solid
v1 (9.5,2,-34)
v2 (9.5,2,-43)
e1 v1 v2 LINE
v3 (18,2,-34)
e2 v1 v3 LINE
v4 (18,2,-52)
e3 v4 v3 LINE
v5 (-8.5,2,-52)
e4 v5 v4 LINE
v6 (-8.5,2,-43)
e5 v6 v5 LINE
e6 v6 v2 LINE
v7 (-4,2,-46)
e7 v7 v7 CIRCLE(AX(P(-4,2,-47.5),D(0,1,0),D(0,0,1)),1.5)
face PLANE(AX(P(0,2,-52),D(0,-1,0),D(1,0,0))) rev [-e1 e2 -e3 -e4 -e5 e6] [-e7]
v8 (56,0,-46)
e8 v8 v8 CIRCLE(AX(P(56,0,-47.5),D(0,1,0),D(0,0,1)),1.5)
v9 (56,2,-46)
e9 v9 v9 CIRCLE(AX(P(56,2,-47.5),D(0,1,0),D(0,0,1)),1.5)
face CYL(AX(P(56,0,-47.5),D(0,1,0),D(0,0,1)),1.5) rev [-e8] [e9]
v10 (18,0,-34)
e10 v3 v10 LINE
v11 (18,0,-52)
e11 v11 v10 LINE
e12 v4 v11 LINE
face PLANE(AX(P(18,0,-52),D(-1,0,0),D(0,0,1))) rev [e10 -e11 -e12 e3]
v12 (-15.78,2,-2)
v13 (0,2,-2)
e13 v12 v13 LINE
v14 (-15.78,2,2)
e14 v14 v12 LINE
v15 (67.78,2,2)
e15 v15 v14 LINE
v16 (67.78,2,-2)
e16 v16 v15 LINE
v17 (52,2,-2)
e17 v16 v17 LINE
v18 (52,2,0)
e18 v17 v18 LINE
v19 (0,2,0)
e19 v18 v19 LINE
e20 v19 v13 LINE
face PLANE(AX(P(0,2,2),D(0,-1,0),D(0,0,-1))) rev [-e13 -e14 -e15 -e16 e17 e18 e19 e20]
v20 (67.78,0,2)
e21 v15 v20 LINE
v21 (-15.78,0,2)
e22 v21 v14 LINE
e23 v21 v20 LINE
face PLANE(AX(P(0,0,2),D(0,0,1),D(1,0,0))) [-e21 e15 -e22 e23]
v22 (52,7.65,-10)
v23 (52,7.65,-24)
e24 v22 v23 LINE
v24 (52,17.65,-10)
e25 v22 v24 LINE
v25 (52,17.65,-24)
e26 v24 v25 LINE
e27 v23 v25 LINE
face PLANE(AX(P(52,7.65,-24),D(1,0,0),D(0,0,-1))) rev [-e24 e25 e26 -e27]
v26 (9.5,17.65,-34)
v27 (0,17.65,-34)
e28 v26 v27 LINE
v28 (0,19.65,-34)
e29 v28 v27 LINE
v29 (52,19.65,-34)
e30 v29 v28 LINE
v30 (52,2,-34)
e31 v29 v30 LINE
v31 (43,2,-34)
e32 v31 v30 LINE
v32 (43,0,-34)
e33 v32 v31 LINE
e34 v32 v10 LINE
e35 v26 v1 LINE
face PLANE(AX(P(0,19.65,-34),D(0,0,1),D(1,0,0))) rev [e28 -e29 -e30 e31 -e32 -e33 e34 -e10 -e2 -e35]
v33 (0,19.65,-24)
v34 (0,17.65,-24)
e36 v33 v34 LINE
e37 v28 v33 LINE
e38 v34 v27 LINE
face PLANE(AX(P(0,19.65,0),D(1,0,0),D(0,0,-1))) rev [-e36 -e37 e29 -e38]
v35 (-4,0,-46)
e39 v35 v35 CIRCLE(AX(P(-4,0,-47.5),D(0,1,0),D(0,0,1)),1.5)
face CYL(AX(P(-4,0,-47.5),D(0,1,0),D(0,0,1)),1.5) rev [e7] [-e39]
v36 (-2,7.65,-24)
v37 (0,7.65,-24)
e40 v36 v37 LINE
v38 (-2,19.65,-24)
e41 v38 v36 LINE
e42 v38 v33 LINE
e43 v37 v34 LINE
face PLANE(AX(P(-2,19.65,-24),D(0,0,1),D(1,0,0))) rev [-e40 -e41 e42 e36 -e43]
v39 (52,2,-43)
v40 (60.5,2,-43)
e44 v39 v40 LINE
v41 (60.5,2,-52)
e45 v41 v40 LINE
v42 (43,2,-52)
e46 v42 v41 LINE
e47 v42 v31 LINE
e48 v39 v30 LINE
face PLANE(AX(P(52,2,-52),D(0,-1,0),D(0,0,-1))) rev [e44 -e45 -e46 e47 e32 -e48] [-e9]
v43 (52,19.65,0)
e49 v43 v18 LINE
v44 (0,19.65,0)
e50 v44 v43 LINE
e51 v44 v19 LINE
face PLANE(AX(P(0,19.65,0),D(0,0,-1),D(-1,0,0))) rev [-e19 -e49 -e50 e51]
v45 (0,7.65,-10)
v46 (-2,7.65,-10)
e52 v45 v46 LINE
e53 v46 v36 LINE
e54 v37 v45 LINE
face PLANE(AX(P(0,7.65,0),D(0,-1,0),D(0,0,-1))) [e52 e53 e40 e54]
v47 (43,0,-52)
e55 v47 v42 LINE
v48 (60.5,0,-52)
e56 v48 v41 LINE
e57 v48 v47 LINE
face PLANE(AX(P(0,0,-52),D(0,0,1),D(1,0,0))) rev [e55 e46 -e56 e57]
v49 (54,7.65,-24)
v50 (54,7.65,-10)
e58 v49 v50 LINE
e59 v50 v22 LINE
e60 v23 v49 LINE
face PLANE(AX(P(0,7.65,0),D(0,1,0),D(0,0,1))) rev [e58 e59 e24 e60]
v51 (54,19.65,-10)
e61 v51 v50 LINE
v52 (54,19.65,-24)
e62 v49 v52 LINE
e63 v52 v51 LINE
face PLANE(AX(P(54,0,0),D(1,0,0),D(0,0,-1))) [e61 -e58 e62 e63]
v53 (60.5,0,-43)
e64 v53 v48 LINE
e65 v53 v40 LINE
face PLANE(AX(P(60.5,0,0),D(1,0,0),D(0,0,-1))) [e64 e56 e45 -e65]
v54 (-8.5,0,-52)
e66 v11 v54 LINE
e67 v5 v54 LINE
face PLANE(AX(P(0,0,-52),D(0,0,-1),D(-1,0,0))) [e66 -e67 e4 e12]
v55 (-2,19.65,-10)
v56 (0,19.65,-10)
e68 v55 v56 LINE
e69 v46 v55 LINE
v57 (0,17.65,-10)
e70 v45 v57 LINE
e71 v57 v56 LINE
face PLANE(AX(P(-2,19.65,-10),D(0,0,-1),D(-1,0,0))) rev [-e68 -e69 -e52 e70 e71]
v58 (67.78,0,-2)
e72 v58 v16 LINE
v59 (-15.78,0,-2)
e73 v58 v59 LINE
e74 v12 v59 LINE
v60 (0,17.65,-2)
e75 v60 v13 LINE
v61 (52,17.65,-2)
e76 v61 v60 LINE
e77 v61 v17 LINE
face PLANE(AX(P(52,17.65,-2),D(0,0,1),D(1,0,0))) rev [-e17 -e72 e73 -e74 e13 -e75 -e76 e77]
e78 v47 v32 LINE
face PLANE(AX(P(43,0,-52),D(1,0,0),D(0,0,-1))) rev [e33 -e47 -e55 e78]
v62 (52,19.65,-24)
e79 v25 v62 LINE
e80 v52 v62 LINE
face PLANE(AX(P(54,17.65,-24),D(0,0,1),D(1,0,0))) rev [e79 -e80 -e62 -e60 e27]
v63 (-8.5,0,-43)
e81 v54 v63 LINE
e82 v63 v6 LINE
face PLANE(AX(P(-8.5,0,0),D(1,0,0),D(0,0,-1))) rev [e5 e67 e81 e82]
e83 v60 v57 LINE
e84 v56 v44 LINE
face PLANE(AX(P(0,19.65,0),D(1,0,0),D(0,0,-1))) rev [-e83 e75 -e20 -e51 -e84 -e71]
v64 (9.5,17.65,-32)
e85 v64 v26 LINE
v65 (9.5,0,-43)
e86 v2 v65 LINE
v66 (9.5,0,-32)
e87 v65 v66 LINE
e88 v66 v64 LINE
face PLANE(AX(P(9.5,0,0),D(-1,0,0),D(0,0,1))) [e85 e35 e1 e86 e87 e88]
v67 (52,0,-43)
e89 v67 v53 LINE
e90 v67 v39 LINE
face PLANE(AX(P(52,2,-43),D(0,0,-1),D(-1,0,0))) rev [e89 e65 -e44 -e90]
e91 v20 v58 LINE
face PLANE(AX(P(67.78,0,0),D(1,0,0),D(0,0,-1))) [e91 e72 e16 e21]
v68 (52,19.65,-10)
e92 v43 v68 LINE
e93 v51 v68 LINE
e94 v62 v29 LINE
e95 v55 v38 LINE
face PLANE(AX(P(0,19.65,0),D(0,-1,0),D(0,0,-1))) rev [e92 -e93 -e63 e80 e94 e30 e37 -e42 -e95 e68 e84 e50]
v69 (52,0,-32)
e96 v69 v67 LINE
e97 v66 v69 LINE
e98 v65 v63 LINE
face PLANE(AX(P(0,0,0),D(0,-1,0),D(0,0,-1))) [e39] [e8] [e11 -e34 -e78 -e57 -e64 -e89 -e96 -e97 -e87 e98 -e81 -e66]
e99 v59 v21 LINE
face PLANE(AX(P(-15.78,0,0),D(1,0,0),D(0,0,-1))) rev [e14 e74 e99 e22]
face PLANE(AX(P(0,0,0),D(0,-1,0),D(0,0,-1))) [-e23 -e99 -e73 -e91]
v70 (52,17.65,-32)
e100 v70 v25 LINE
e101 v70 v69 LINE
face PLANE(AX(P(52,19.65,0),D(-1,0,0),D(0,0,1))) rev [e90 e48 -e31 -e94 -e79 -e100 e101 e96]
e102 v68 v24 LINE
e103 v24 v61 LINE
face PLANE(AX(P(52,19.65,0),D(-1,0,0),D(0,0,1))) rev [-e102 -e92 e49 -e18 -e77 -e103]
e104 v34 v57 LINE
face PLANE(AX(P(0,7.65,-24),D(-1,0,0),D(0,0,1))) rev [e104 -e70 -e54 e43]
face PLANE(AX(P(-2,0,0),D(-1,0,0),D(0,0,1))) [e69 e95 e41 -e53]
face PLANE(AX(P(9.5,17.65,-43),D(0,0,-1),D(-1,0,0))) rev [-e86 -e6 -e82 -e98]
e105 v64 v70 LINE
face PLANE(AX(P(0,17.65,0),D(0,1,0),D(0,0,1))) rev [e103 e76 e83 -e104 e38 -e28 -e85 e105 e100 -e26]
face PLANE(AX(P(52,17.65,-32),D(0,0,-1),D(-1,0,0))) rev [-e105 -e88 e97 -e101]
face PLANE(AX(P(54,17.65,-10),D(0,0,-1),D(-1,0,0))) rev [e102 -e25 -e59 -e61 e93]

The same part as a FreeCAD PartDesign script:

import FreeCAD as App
import Part
import Sketcher
from FreeCAD import Vector
Q = App.Units.Quantity


def add_polygon(sketch, points):
    """Adds a closed chain of lines whose ends are joined by coincident constraints."""
    first, n = sketch.GeometryCount, len(points)
    for a, b in zip(points, points[1:] + points[:1]):
        sketch.addGeometry(Part.LineSegment(App.Vector(*a, 0), App.Vector(*b, 0)), False)
    for i in range(n):
        sketch.addConstraint(Sketcher.Constraint("Coincident", first + i, 2, first + (i + 1) % n, 1))

doc = App.newDocument("Part")
body = doc.addObject("PartDesign::Body", "Body")

# Sketch on XZ plane
sketch1 = body.newObject("Sketcher::SketchObject", "Sketch")
sketch1.AttachmentSupport = (doc.getObject("XZ_Plane"), [""])
sketch1.MapMode = "FlatFace"
add_polygon(sketch1, [(0, -34), (0, 0), (52, 0), (52, -34)])  # lines 0-3
sketch1.addConstraint([
    Sketcher.Constraint("Vertical", 0),
    Sketcher.Constraint("Horizontal", 1),
    Sketcher.Constraint("Vertical", 2),
    Sketcher.Constraint("Horizontal", 3),
    Sketcher.Constraint("Coincident", 0, 2, -1, 1),
    Sketcher.Constraint("DistanceX", 1, 1, 1, 2, Q("52 mm")),
    Sketcher.Constraint("DistanceY", 0, 1, 0, 2, Q("34 mm")),
])
pad1 = body.newObject("PartDesign::Pad", "Pad")
pad1.Profile = sketch1
pad1.Length = 19.65
pad1.Reversed = True

# Sketch on XZ plane
sketch2 = body.newObject("Sketcher::SketchObject", "Sketch001")
sketch2.AttachmentSupport = (doc.getObject("XZ_Plane"), [""])
sketch2.MapMode = "FlatFace"
add_polygon(sketch2, [(52, -32), (52, -2), (0, -2), (0, -32)])  # lines 0-3
sketch2.addConstraint([
    Sketcher.Constraint("Vertical", 0),
    Sketcher.Constraint("Horizontal", 1),
    Sketcher.Constraint("Vertical", 2),
    Sketcher.Constraint("Horizontal", 3),
    Sketcher.Constraint("PointOnObject", 1, 2, -2),
    Sketcher.Constraint("DistanceX", 1, 2, 1, 1, Q("52 mm")),
    Sketcher.Constraint("DistanceY", 0, 1, 0, 2, Q("30 mm")),
    Sketcher.Constraint("DistanceY", 0, 2, -1, 1, Q("2 mm")),
])
pocket1 = body.newObject("PartDesign::Pocket", "Pocket")
pocket1.Profile = sketch2
pocket1.Length = 17.65

# Sketch on XY plane
sketch3 = body.newObject("Sketcher::SketchObject", "Sketch002")
sketch3.AttachmentSupport = (doc.getObject("XY_Plane"), [""])
sketch3.MapMode = "FlatFace"
sketch3.AttachmentOffset = App.Placement(Vector(0, 0, -34), App.Rotation())
add_polygon(sketch3, [(52, 2), (52, 0), (43, 0), (43, 2)])  # lines 0-3
add_polygon(sketch3, [(18, 2), (18, 0), (0, 0), (0, 2)])  # lines 4-7
sketch3.addConstraint([
    Sketcher.Constraint("Vertical", 0),
    Sketcher.Constraint("Horizontal", 1),
    Sketcher.Constraint("Vertical", 2),
    Sketcher.Constraint("Horizontal", 3),
    Sketcher.Constraint("Vertical", 4),
    Sketcher.Constraint("Horizontal", 5),
    Sketcher.Constraint("Vertical", 6),
    Sketcher.Constraint("Horizontal", 7),
    Sketcher.Constraint("Coincident", 5, 2, -1, 1),
    Sketcher.Constraint("PointOnObject", 0, 2, -1),
    Sketcher.Constraint("Horizontal", 3, 2, 6, 2),
    Sketcher.Constraint("DistanceX", 1, 2, 1, 1, Q("9 mm")),
    Sketcher.Constraint("DistanceX", 5, 2, 5, 1, Q("18 mm")),
    Sketcher.Constraint("DistanceY", 0, 2, 0, 1, Q("2 mm")),
    Sketcher.Constraint("DistanceX", -1, 1, 0, 2, Q("52 mm")),
])
pad2 = body.newObject("PartDesign::Pad", "Pad001")
pad2.Profile = sketch3
pad2.Length = 18
pad2.Reversed = True

# Sketch on YZ plane
sketch4 = body.newObject("Sketcher::SketchObject", "Sketch003")
sketch4.AttachmentSupport = (doc.getObject("YZ_Plane"), [""])
sketch4.MapMode = "FlatFace"
sketch4.AttachmentOffset = App.Placement(Vector(0, 0, 52), App.Rotation())
add_polygon(sketch4, [(2, -34), (0, -34), (0, -52), (2, -52)])  # lines 0-3
sketch4.addConstraint([
    Sketcher.Constraint("Horizontal", 0),
    Sketcher.Constraint("Vertical", 1),
    Sketcher.Constraint("Horizontal", 2),
    Sketcher.Constraint("Vertical", 3),
    Sketcher.Constraint("PointOnObject", 0, 2, -2),
    Sketcher.Constraint("DistanceX", 0, 2, 0, 1, Q("2 mm")),
    Sketcher.Constraint("DistanceY", 1, 2, 1, 1, Q("18 mm")),
    Sketcher.Constraint("DistanceY", 0, 2, -1, 1, Q("34 mm")),
])
pad3 = body.newObject("PartDesign::Pad", "Pad002")
pad3.Profile = sketch4
pad3.Length = 8.5

# Sketch on YZ plane
sketch5 = body.newObject("Sketcher::SketchObject", "Sketch004")
sketch5.AttachmentSupport = (doc.getObject("YZ_Plane"), [""])
sketch5.MapMode = "FlatFace"
add_polygon(sketch5, [(2, -52), (0, -52), (0, -34), (2, -34)])  # lines 0-3
sketch5.addConstraint([
    Sketcher.Constraint("Horizontal", 0),
    Sketcher.Constraint("Vertical", 1),
    Sketcher.Constraint("Horizontal", 2),
    Sketcher.Constraint("Vertical", 3),
    Sketcher.Constraint("PointOnObject", 0, 2, -2),
    Sketcher.Constraint("DistanceX", 0, 2, 0, 1, Q("2 mm")),
    Sketcher.Constraint("DistanceY", 1, 1, 1, 2, Q("18 mm")),
    Sketcher.Constraint("DistanceY", 0, 2, -1, 1, Q("52 mm")),
])
pad4 = body.newObject("PartDesign::Pad", "Pad003")
pad4.Profile = sketch5
pad4.Length = 8.5
pad4.Reversed = True

# Sketch on XZ plane
sketch6 = body.newObject("Sketcher::SketchObject", "Sketch005")
sketch6.AttachmentSupport = (doc.getObject("XZ_Plane"), [""])
sketch6.MapMode = "FlatFace"
sketch6.AttachmentOffset = App.Placement(Vector(0, 0, -2), App.Rotation())
sketch6.addGeometry([
    Part.Circle(Vector(56, -47.5, 0), Vector(0, 0, 1), 1.5),
    Part.Circle(Vector(-4, -47.5, 0), Vector(0, 0, 1), 1.5),
], False)
sketch6.addConstraint([
    Sketcher.Constraint("Equal", 0, 1),
    Sketcher.Constraint("Horizontal", 0, 3, 1, 3),
    Sketcher.Constraint("Diameter", 0, Q("3 mm")),
    Sketcher.Constraint("DistanceX", -1, 1, 0, 3, Q("56 mm")),
    Sketcher.Constraint("DistanceX", 1, 3, -1, 1, Q("4 mm")),
    Sketcher.Constraint("DistanceY", 0, 3, -1, 1, Q("47.5 mm")),
])
pocket2 = body.newObject("PartDesign::Pocket", "Pocket001")
pocket2.Profile = sketch6
pocket2.Type = "ThroughAll"
pocket2.Reversed = True

# Sketch on XY plane
sketch7 = body.newObject("Sketcher::SketchObject", "Sketch006")
sketch7.AttachmentSupport = (doc.getObject("XY_Plane"), [""])
sketch7.MapMode = "FlatFace"
add_polygon(sketch7, [(0, 2), (0, 0), (52, 0), (52, 2)])  # lines 0-3
sketch7.addConstraint([
    Sketcher.Constraint("Vertical", 0),
    Sketcher.Constraint("Horizontal", 1),
    Sketcher.Constraint("Vertical", 2),
    Sketcher.Constraint("Horizontal", 3),
    Sketcher.Constraint("Coincident", 0, 2, -1, 1),
    Sketcher.Constraint("DistanceX", 1, 1, 1, 2, Q("52 mm")),
    Sketcher.Constraint("DistanceY", 0, 2, 0, 1, Q("2 mm")),
])
pad5 = body.newObject("PartDesign::Pad", "Pad004")
pad5.Profile = sketch7
pad5.Length = 2

# Sketch on YZ plane
sketch8 = body.newObject("Sketcher::SketchObject", "Sketch007")
sketch8.AttachmentSupport = (doc.getObject("YZ_Plane"), [""])
sketch8.MapMode = "FlatFace"
add_polygon(sketch8, [(2, -2), (0, -2), (0, 2), (2, 2)])  # lines 0-3
sketch8.addConstraint([
    Sketcher.Constraint("Horizontal", 0),
    Sketcher.Constraint("Vertical", 1),
    Sketcher.Constraint("Horizontal", 2),
    Sketcher.Constraint("Vertical", 3),
    Sketcher.Constraint("Symmetric", 0, 2, 1, 2, -1, 1),
    Sketcher.Constraint("DistanceX", 0, 2, 0, 1, Q("2 mm")),
    Sketcher.Constraint("DistanceY", 1, 1, 1, 2, Q("4 mm")),
])
pad6 = body.newObject("PartDesign::Pad", "Pad005")
pad6.Profile = sketch8
pad6.Length = 15.78
pad6.Reversed = True

# Sketch on YZ plane
sketch9 = body.newObject("Sketcher::SketchObject", "Sketch008")
sketch9.AttachmentSupport = (doc.getObject("YZ_Plane"), [""])
sketch9.MapMode = "FlatFace"
sketch9.AttachmentOffset = App.Placement(Vector(0, 0, 52), App.Rotation())
add_polygon(sketch9, [(2, 2), (0, 2), (0, -2), (2, -2)])  # lines 0-3
sketch9.addConstraint([
    Sketcher.Constraint("Horizontal", 0),
    Sketcher.Constraint("Vertical", 1),
    Sketcher.Constraint("Horizontal", 2),
    Sketcher.Constraint("Vertical", 3),
    Sketcher.Constraint("Symmetric", 0, 2, 1, 2, -1, 1),
    Sketcher.Constraint("DistanceX", 0, 2, 0, 1, Q("2 mm")),
    Sketcher.Constraint("DistanceY", 1, 2, 1, 1, Q("4 mm")),
])
pad7 = body.newObject("PartDesign::Pad", "Pad006")
pad7.Profile = sketch9
pad7.Length = 15.78

# Sketch on YZ plane
sketch10 = body.newObject("Sketcher::SketchObject", "Sketch009")
sketch10.AttachmentSupport = (doc.getObject("YZ_Plane"), [""])
sketch10.MapMode = "FlatFace"
sketch10.AttachmentOffset = App.Placement(Vector(0, 0, -8.5), App.Rotation())
add_polygon(sketch10, [(18, -43), (0, -43), (0, -32), (18, -32)])  # lines 0-3
sketch10.addConstraint([
    Sketcher.Constraint("Horizontal", 0),
    Sketcher.Constraint("Vertical", 1),
    Sketcher.Constraint("Horizontal", 2),
    Sketcher.Constraint("Vertical", 3),
    Sketcher.Constraint("PointOnObject", 0, 2, -2),
    Sketcher.Constraint("DistanceY", 1, 1, 1, 2, Q("11 mm")),
    Sketcher.Constraint("DistanceY", 0, 2, -1, 1, Q("43 mm")),
    Sketcher.Constraint("DistanceX", 0, 2, 0, 1, Q("17.65 mm")),
])
pocket3 = body.newObject("PartDesign::Pocket", "Pocket002")
pocket3.Profile = sketch10
pocket3.Length = 18
pocket3.Reversed = True

# Sketch on YZ plane
sketch11 = body.newObject("Sketcher::SketchObject", "Sketch010")
sketch11.AttachmentSupport = (doc.getObject("YZ_Plane"), [""])
sketch11.MapMode = "FlatFace"
sketch11.AttachmentOffset = App.Placement(Vector(0, 0, 60.5), App.Rotation())
add_polygon(sketch11, [(2, -34), (0, -34), (0, -43), (2, -43)])  # lines 0-3
sketch11.addConstraint([
    Sketcher.Constraint("Horizontal", 0),
    Sketcher.Constraint("Vertical", 1),
    Sketcher.Constraint("Horizontal", 2),
    Sketcher.Constraint("Vertical", 3),
    Sketcher.Constraint("PointOnObject", 0, 2, -2),
    Sketcher.Constraint("DistanceX", 0, 2, 0, 1, Q("2 mm")),
    Sketcher.Constraint("DistanceY", 1, 2, 1, 1, Q("9 mm")),
    Sketcher.Constraint("DistanceY", 0, 2, -1, 1, Q("34 mm")),
])
pocket4 = body.newObject("PartDesign::Pocket", "Pocket003")
pocket4.Profile = sketch11
pocket4.Length = 8.5

# Sketch on YZ plane
sketch12 = body.newObject("Sketcher::SketchObject", "Sketch011")
sketch12.AttachmentSupport = (doc.getObject("YZ_Plane"), [""])
sketch12.MapMode = "FlatFace"
add_polygon(sketch12, [(19.6, -24), (17.6, -24), (17.6, -10), (19.6, -10)])  # lines 0-3
sketch12.addConstraint([
    Sketcher.Constraint("Horizontal", 0),
    Sketcher.Constraint("Vertical", 1),
    Sketcher.Constraint("Horizontal", 2),
    Sketcher.Constraint("Vertical", 3),
    Sketcher.Constraint("DistanceX", 0, 2, 0, 1, Q("2 mm")),
    Sketcher.Constraint("DistanceY", 1, 1, 1, 2, Q("14 mm")),
    Sketcher.Constraint("DistanceY", 0, 2, -1, 1, Q("24 mm")),
    Sketcher.Constraint("DistanceX", -1, 1, 0, 2, Q("17.65 mm")),
])
pad8 = body.newObject("PartDesign::Pad", "Pad007")
pad8.Profile = sketch12
pad8.Length = 2
pad8.Reversed = True

# Sketch on YZ plane
sketch13 = body.newObject("Sketcher::SketchObject", "Sketch012")
sketch13.AttachmentSupport = (doc.getObject("YZ_Plane"), [""])
sketch13.MapMode = "FlatFace"
sketch13.AttachmentOffset = App.Placement(Vector(0, 0, 52), App.Rotation())
add_polygon(sketch13, [(19.6, -10), (17.6, -10), (17.6, -24), (19.6, -24)])  # lines 0-3
sketch13.addConstraint([
    Sketcher.Constraint("Horizontal", 0),
    Sketcher.Constraint("Vertical", 1),
    Sketcher.Constraint("Horizontal", 2),
    Sketcher.Constraint("Vertical", 3),
    Sketcher.Constraint("DistanceX", 0, 2, 0, 1, Q("2 mm")),
    Sketcher.Constraint("DistanceY", 1, 2, 1, 1, Q("14 mm")),
    Sketcher.Constraint("DistanceY", 0, 2, -1, 1, Q("10 mm")),
    Sketcher.Constraint("DistanceX", -1, 1, 0, 2, Q("17.65 mm")),
])
pad9 = body.newObject("PartDesign::Pad", "Pad008")
pad9.Profile = sketch13
pad9.Length = 2

# Sketch on XZ plane
sketch14 = body.newObject("Sketcher::SketchObject", "Sketch013")
sketch14.AttachmentSupport = (doc.getObject("XZ_Plane"), [""])
sketch14.MapMode = "FlatFace"
sketch14.AttachmentOffset = App.Placement(Vector(0, 0, -17.65), App.Rotation())
add_polygon(sketch14, [(0, -24), (0, -10), (-2, -10), (-2, -24)])  # lines 0-3
add_polygon(sketch14, [(54, -24), (54, -10), (52, -10), (52, -24)])  # lines 4-7
sketch14.addConstraint([
    Sketcher.Constraint("Vertical", 0),
    Sketcher.Constraint("Horizontal", 1),
    Sketcher.Constraint("Vertical", 2),
    Sketcher.Constraint("Horizontal", 3),
    Sketcher.Constraint("Vertical", 4),
    Sketcher.Constraint("Horizontal", 5),
    Sketcher.Constraint("Vertical", 6),
    Sketcher.Constraint("Horizontal", 7),
    Sketcher.Constraint("PointOnObject", 0, 2, -2),
    Sketcher.Constraint("Horizontal", 1, 2, 4, 2),
    Sketcher.Constraint("Horizontal", 3, 2, 6, 2),
    Sketcher.Constraint("Equal", 3, 5),
    Sketcher.Constraint("DistanceX", 1, 2, 1, 1, Q("2 mm")),
    Sketcher.Constraint("DistanceY", 0, 1, 0, 2, Q("14 mm")),
    Sketcher.Constraint("DistanceY", 0, 2, -1, 1, Q("10 mm")),
    Sketcher.Constraint("DistanceX", -1, 1, 4, 2, Q("54 mm")),
])
pad10 = body.newObject("PartDesign::Pad", "Pad009")
pad10.Profile = sketch14
pad10.Length = 10

doc.recompute()
